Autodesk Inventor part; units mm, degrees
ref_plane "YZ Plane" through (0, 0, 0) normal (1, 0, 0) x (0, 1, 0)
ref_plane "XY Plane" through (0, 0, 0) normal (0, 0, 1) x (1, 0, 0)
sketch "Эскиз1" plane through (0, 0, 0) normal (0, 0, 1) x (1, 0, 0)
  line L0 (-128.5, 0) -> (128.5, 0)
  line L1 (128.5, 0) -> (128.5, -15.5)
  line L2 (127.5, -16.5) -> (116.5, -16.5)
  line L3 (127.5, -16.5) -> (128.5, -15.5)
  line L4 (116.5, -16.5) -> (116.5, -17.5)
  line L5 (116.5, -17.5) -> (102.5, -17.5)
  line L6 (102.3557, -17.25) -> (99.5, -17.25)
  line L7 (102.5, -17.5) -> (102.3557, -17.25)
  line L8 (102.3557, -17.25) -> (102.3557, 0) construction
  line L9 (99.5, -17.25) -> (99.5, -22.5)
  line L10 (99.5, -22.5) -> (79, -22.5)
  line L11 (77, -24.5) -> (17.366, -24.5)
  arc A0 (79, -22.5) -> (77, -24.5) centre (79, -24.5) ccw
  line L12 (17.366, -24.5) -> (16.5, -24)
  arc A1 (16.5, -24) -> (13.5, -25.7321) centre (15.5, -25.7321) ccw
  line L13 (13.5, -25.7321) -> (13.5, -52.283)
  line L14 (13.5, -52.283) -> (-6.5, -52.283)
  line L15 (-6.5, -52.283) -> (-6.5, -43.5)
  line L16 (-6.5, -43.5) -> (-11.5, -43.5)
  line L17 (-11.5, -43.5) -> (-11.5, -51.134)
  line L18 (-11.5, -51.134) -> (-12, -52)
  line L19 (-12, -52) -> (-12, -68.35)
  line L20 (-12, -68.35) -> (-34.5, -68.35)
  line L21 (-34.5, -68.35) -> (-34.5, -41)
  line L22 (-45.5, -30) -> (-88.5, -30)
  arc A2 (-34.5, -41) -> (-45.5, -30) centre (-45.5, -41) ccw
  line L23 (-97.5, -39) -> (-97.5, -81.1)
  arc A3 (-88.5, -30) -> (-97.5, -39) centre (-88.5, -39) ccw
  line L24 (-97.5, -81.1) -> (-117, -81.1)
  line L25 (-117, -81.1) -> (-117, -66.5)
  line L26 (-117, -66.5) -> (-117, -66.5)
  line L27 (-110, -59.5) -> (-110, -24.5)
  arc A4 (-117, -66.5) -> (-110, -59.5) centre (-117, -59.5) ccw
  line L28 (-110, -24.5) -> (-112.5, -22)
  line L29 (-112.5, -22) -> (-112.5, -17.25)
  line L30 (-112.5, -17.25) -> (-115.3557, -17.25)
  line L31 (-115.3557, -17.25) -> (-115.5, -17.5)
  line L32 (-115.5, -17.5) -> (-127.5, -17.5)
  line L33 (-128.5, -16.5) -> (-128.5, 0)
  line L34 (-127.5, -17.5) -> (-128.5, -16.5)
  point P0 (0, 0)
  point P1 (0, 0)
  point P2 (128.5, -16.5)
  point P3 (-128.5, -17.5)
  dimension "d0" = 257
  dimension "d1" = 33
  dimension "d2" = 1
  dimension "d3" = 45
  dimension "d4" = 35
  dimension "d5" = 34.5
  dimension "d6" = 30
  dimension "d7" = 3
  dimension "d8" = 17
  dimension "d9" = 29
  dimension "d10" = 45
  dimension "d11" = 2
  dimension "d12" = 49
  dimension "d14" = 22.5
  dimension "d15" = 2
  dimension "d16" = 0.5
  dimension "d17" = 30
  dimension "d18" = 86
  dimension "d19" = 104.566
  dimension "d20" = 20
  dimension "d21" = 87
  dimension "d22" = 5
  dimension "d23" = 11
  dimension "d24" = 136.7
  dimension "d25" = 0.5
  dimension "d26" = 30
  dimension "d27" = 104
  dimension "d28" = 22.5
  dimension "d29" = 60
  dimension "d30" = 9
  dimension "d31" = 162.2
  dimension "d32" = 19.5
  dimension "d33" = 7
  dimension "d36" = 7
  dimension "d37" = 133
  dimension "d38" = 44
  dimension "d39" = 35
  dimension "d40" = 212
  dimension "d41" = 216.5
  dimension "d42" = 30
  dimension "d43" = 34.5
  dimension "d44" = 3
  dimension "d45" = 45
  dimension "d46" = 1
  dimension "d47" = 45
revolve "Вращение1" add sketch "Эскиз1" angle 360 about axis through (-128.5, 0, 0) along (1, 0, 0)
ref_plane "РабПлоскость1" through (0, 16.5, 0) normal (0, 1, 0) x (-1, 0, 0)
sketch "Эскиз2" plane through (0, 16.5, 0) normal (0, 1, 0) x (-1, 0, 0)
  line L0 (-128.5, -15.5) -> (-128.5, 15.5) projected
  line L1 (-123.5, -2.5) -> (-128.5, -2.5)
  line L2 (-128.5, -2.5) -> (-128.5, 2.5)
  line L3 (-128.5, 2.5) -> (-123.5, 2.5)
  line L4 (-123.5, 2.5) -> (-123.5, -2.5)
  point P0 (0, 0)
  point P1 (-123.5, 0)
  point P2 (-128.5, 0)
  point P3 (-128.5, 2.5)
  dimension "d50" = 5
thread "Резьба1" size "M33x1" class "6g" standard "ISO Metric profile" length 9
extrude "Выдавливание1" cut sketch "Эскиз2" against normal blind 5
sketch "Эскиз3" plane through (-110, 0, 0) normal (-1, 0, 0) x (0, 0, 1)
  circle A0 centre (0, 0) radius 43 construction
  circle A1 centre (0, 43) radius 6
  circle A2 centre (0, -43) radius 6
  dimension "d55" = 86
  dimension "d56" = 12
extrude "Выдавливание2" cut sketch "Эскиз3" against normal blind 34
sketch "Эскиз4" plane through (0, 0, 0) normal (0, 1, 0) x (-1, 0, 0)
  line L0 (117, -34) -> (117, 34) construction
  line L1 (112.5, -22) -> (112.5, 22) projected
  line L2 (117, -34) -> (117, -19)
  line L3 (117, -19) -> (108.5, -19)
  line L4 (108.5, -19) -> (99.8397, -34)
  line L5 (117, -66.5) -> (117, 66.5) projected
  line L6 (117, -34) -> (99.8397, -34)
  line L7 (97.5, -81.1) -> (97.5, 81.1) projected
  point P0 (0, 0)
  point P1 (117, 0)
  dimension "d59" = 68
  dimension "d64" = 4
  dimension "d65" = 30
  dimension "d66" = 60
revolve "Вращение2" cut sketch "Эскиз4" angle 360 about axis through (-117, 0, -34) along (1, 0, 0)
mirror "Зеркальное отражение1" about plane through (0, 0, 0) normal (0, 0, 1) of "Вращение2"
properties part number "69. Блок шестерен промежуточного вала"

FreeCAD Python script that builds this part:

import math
import FreeCAD as App
import Part
import Sketcher
from FreeCAD import Vector
Q = App.Units.Quantity

doc = App.newDocument("Part")
body = doc.addObject("PartDesign::Body", "Body")

# Sketch on XY plane
sketch1 = body.newObject("Sketcher::SketchObject", "Sketch")
sketch1.AttachmentSupport = (doc.getObject("XY_Plane"), [""])
sketch1.MapMode = "FlatFace"
sketch1.addGeometry([
    Part.LineSegment(Vector(128.5, 0, 0), Vector(-128.5, 0, 0)),  # 0
    Part.LineSegment(Vector(-128.5, 0, 0), Vector(-128.5, -16.5, 0)),  # 1
    Part.LineSegment(Vector(-128.5, -16.5, 0), Vector(-127.5, -17.5, 0)),  # 2
    Part.LineSegment(Vector(-127.5, -17.5, 0), Vector(-115.5, -17.5, 0)),  # 3
    Part.LineSegment(Vector(-115.5, -17.5, 0), Vector(-115.3557, -17.25, 0)),  # 4
    Part.LineSegment(Vector(-115.3557, -17.25, 0), Vector(-112.5, -17.25, 0)),  # 5
    Part.LineSegment(Vector(-112.5, -17.25, 0), Vector(-112.5, -22, 0)),  # 6
    Part.LineSegment(Vector(-112.5, -22, 0), Vector(-110, -24.5, 0)),  # 7
    Part.LineSegment(Vector(-110, -24.5, 0), Vector(-110, -59.5, 0)),  # 8
    Part.ArcOfCircle(Part.Circle(Vector(-117, -59.5, 0), Vector(0, 0, 1), 7), math.radians(-90), math.radians(0)),  # 9
    Part.LineSegment(Vector(-117, -66.5, 0), Vector(-117, -81.1, 0)),  # 10
    Part.LineSegment(Vector(-117, -81.1, 0), Vector(-97.5, -81.1, 0)),  # 11
    Part.LineSegment(Vector(-97.5, -81.1, 0), Vector(-97.5, -39, 0)),  # 12
    Part.ArcOfCircle(Part.Circle(Vector(-88.5, -39, 0), Vector(0, 0, 1), 9), math.radians(90), math.radians(180)),  # 13
    Part.LineSegment(Vector(-88.5, -30, 0), Vector(-45.5, -30, 0)),  # 14
    Part.ArcOfCircle(Part.Circle(Vector(-45.5, -41, 0), Vector(0, 0, 1), 11), math.radians(0), math.radians(90)),  # 15
    Part.LineSegment(Vector(-34.5, -41, 0), Vector(-34.5, -68.35, 0)),  # 16
    Part.LineSegment(Vector(-34.5, -68.35, 0), Vector(-12, -68.35, 0)),  # 17
    Part.LineSegment(Vector(-12, -68.35, 0), Vector(-12, -52, 0)),  # 18
    Part.LineSegment(Vector(-12, -52, 0), Vector(-11.5, -51.134, 0)),  # 19
    Part.LineSegment(Vector(-11.5, -51.134, 0), Vector(-11.5, -43.5, 0)),  # 20
    Part.LineSegment(Vector(-11.5, -43.5, 0), Vector(-6.5, -43.5, 0)),  # 21
    Part.LineSegment(Vector(-6.5, -43.5, 0), Vector(-6.5, -52.283, 0)),  # 22
    Part.LineSegment(Vector(-6.5, -52.283, 0), Vector(13.5, -52.283, 0)),  # 23
    Part.LineSegment(Vector(13.5, -52.283, 0), Vector(13.5, -25.7321, 0)),  # 24
    Part.ArcOfCircle(Part.Circle(Vector(15.5, -25.7321, 0), Vector(0, 0, 1), 2.000043), math.radians(60.000705), math.radians(180)),  # 25
    Part.LineSegment(Vector(16.5, -24, 0), Vector(17.366, -24.5, 0)),  # 26
    Part.LineSegment(Vector(17.366, -24.5, 0), Vector(77, -24.5, 0)),  # 27
    Part.ArcOfCircle(Part.Circle(Vector(79, -24.5, 0), Vector(0, 0, 1), 2), math.radians(90), math.radians(180)),  # 28
    Part.LineSegment(Vector(79, -22.5, 0), Vector(99.5, -22.5, 0)),  # 29
    Part.LineSegment(Vector(99.5, -22.5, 0), Vector(99.5, -17.25, 0)),  # 30
    Part.LineSegment(Vector(99.5, -17.25, 0), Vector(102.3557, -17.25, 0)),  # 31
    Part.LineSegment(Vector(102.3557, -17.25, 0), Vector(102.5, -17.5, 0)),  # 32
    Part.LineSegment(Vector(102.5, -17.5, 0), Vector(116.5, -17.5, 0)),  # 33
    Part.LineSegment(Vector(116.5, -17.5, 0), Vector(116.5, -16.5, 0)),  # 34
    Part.LineSegment(Vector(116.5, -16.5, 0), Vector(127.5, -16.5, 0)),  # 35
    Part.LineSegment(Vector(127.5, -16.5, 0), Vector(128.5, -15.5, 0)),  # 36
    Part.LineSegment(Vector(128.5, -15.5, 0), Vector(128.5, 0, 0)),  # 37
], False)
sketch1.addConstraint([
    Sketcher.Constraint("Coincident", 0, 2, 1, 1),
    Sketcher.Constraint("Coincident", 1, 2, 2, 1),
    Sketcher.Constraint("Coincident", 2, 2, 3, 1),
    Sketcher.Constraint("Coincident", 3, 2, 4, 1),
    Sketcher.Constraint("Coincident", 4, 2, 5, 1),
    Sketcher.Constraint("Coincident", 5, 2, 6, 1),
    Sketcher.Constraint("Coincident", 6, 2, 7, 1),
    Sketcher.Constraint("Coincident", 7, 2, 8, 1),
    Sketcher.Constraint("Tangent", 8, 2, 9, 2),
    Sketcher.Constraint("Coincident", 9, 1, 10, 1),
    Sketcher.Constraint("Coincident", 10, 2, 11, 1),
    Sketcher.Constraint("Coincident", 11, 2, 12, 1),
    Sketcher.Constraint("Tangent", 12, 2, 13, 2),
    Sketcher.Constraint("Tangent", 13, 1, 14, 1),
    Sketcher.Constraint("Tangent", 14, 2, 15, 2),
    Sketcher.Constraint("Tangent", 15, 1, 16, 1),
    Sketcher.Constraint("Coincident", 16, 2, 17, 1),
    Sketcher.Constraint("Coincident", 17, 2, 18, 1),
    Sketcher.Constraint("Coincident", 18, 2, 19, 1),
    Sketcher.Constraint("Coincident", 19, 2, 20, 1),
    Sketcher.Constraint("Coincident", 20, 2, 21, 1),
    Sketcher.Constraint("Coincident", 21, 2, 22, 1),
    Sketcher.Constraint("Coincident", 22, 2, 23, 1),
    Sketcher.Constraint("Coincident", 23, 2, 24, 1),
    Sketcher.Constraint("Tangent", 24, 2, 25, 2),
    Sketcher.Constraint("Tangent", 25, 1, 26, 1),
    Sketcher.Constraint("Coincident", 26, 2, 27, 1),
    Sketcher.Constraint("Coincident", 27, 2, 28, 2),
    Sketcher.Constraint("Tangent", 28, 1, 29, 1),
    Sketcher.Constraint("Coincident", 29, 2, 30, 1),
    Sketcher.Constraint("Coincident", 30, 2, 31, 1),
    Sketcher.Constraint("Coincident", 31, 2, 32, 1),
    Sketcher.Constraint("Coincident", 32, 2, 33, 1),
    Sketcher.Constraint("Coincident", 33, 2, 34, 1),
    Sketcher.Constraint("Coincident", 34, 2, 35, 1),
    Sketcher.Constraint("Coincident", 35, 2, 36, 1),
    Sketcher.Constraint("Coincident", 36, 2, 37, 1),
    Sketcher.Constraint("Coincident", 37, 2, 0, 1),
    Sketcher.Constraint("Horizontal", 0),
    Sketcher.Constraint("Vertical", 1),
    Sketcher.Constraint("Horizontal", 3),
    Sketcher.Constraint("Horizontal", 5),
    Sketcher.Constraint("Vertical", 6),
    Sketcher.Constraint("Vertical", 8),
    Sketcher.Constraint("Vertical", 10),
    Sketcher.Constraint("Horizontal", 11),
    Sketcher.Constraint("Vertical", 12),
    Sketcher.Constraint("Horizontal", 14),
    Sketcher.Constraint("Vertical", 16),
    Sketcher.Constraint("Horizontal", 17),
    Sketcher.Constraint("Vertical", 18),
    Sketcher.Constraint("Vertical", 20),
    Sketcher.Constraint("Horizontal", 21),
    Sketcher.Constraint("Vertical", 22),
    Sketcher.Constraint("Horizontal", 23),
    Sketcher.Constraint("Vertical", 24),
    Sketcher.Constraint("Horizontal", 27),
    Sketcher.Constraint("Horizontal", 29),
    Sketcher.Constraint("Vertical", 30),
    Sketcher.Constraint("Horizontal", 31),
    Sketcher.Constraint("Horizontal", 33),
    Sketcher.Constraint("Vertical", 34),
    Sketcher.Constraint("Horizontal", 35),
    Sketcher.Constraint("Vertical", 37),
    Sketcher.Constraint("Equal", 25, 28),
    Sketcher.Constraint("Symmetric", 0, 2, 37, 2, -1, 1),
    Sketcher.Constraint("Parallel", 2, 7),
    Sketcher.Constraint("Parallel", 4, 19),
    Sketcher.Constraint("Perpendicular", 19, 26),
    Sketcher.Constraint("Perpendicular", 7, 36),
    Sketcher.Constraint("Horizontal", 28, 3, 7, 2),
    Sketcher.Constraint("Horizontal", 7, 2, 26, 2),
    Sketcher.Constraint("Horizontal", 5, 2, 30, 2),
    Sketcher.Constraint("Horizontal", 3, 2, 32, 2),
    Sketcher.Constraint("Horizontal", 1, 2, 34, 2),
    Sketcher.Constraint("Equal", 5, 31),
    Sketcher.Constraint("Equal", 19, 26),
    Sketcher.Constraint("Equal", 4, 32),
    Sketcher.Constraint("Equal", 2, 36),
    Sketcher.Constraint("Radius", 9, Q("7 mm")),
    Sketcher.Constraint("Radius", 13, Q("9 mm")),
    Sketcher.Constraint("Radius", 15, Q("11 mm")),
    Sketcher.Constraint("Radius", 25, Q("2 mm")),
    Sketcher.Constraint("DistanceX", 0, 2, 0, 1, Q("257 mm")),
    Sketcher.Constraint("DistanceX", 21, 1, 21, 2, Q("5 mm")),
    Sketcher.Constraint("DistanceX", 23, 1, 23, 2, Q("20 mm")),
    Sketcher.Constraint("DistanceX", 35, 1, 35, 2, Q("11 mm")),
    Sketcher.Constraint("DistanceY", 8, 2, 8, 1, Q("35 mm")),
    Sketcher.Constraint("DistanceY", 34, 1, 34, 2, Q("1 mm")),
    Sketcher.Constraint("Angle", 2, Q("-45 deg")),
    Sketcher.Constraint("Distance", 19, Q("1 mm")),
    Sketcher.Constraint("DistanceX", 11, 1, 11, 2, Q("19.5 mm")),
    Sketcher.Constraint("DistanceX", 17, 1, 17, 2, Q("22.5 mm")),
    Sketcher.Constraint("DistanceY", 13, 1, -1, 1, Q("30 mm")),
    Sketcher.Constraint("DistanceX", 13, 3, 25, 3, Q("104 mm")),
    Sketcher.Constraint("DistanceX", 3, 2, 5, 2, Q("3 mm")),
    Sketcher.Constraint("DistanceY", 7, 2, 3, 2, Q("7 mm")),
    Sketcher.Constraint("DistanceX", 9, 1, 8, 2, Q("7 mm")),
    Sketcher.Constraint("DistanceY", 12, 2, 6, 2, Q("17 mm")),
    Sketcher.Constraint("DistanceY", 18, 2, 15, 1, Q("11 mm")),
    Sketcher.Constraint("DistanceX", 25, 3, 25, 1, Q("1 mm")),
    Sketcher.Constraint("DistanceX", 30, 2, 33, 2, Q("17 mm")),
    Sketcher.Constraint("DistanceX", 15, 1, -1, 1, Q("34.5 mm")),
    Sketcher.Constraint("DistanceY", 28, 1, -1, 1, Q("22.5 mm")),
    Sketcher.Constraint("DistanceY", 21, 2, 25, 1, Q("19.5 mm")),
    Sketcher.Constraint("DistanceX", 27, 2, 29, 2, Q("22.5 mm")),
    Sketcher.Constraint("DistanceY", 10, 2, 10, 1, Q("14.6 mm")),
    Sketcher.Constraint("DistanceY", 6, 2, 6, 1, Q("4.75 mm")),
    Sketcher.Constraint("DistanceY", 16, 2, 16, 1, Q("27.35 mm")),
    Sketcher.Constraint("DistanceY", 22, 2, 22, 1, Q("8.783 mm")),
])
revolution = body.newObject("PartDesign::Revolution", "Revolution")
revolution.Profile = sketch1
revolution.ReferenceAxis = (sketch1, ["H_Axis"])
revolution.Angle = 360

# Sketch on XZ plane
sketch2 = body.newObject("Sketcher::SketchObject", "Sketch001")
sketch2.AttachmentSupport = (doc.getObject("XZ_Plane"), [""])
sketch2.MapMode = "FlatFace"
sketch2.AttachmentOffset = App.Placement(Vector(0, 0, -16.5), App.Rotation())
sketch2.addGeometry([
    Part.LineSegment(Vector(128.5, 2.5, 0), Vector(128.5, -2.5, 0)),
    Part.LineSegment(Vector(128.5, -2.5, 0), Vector(123.5, -2.5, 0)),
    Part.LineSegment(Vector(123.5, -2.5, 0), Vector(123.5, 2.5, 0)),
    Part.LineSegment(Vector(123.5, 2.5, 0), Vector(128.5, 2.5, 0)),
], False)
sketch2.addConstraint([
    Sketcher.Constraint("Coincident", 0, 2, 1, 1),
    Sketcher.Constraint("Coincident", 1, 2, 2, 1),
    Sketcher.Constraint("Coincident", 2, 2, 3, 1),
    Sketcher.Constraint("Coincident", 3, 2, 0, 1),
    Sketcher.Constraint("Vertical", 0),
    Sketcher.Constraint("Horizontal", 1),
    Sketcher.Constraint("Vertical", 2),
    Sketcher.Constraint("Horizontal", 3),
    Sketcher.Constraint("Equal", 3, 0),
    Sketcher.Constraint("DistanceX", 1, 2, 1, 1, Q("5 mm")),
    Sketcher.Constraint("DistanceX", -1, 1, 0, 2, Q("128.5 mm")),
    Sketcher.Constraint("DistanceY", 0, 2, -1, 1, Q("2.5 mm")),
])
pocket1 = body.newObject("PartDesign::Pocket", "Pocket")
pocket1.Profile = sketch2
pocket1.Length = 5
pocket1.Reversed = True

# Sketch on YZ plane
sketch3 = body.newObject("Sketcher::SketchObject", "Sketch002")
sketch3.AttachmentSupport = (doc.getObject("YZ_Plane"), [""])
sketch3.MapMode = "FlatFace"
sketch3.AttachmentOffset = App.Placement(Vector(0, 0, -110), App.Rotation())
sketch3.addGeometry([
    Part.Circle(Vector(43, 0, 0), Vector(0, 0, 1), 6),
    Part.Circle(Vector(-43, 0, 0), Vector(0, 0, 1), 6),
], False)
sketch3.addConstraint([
    Sketcher.Constraint("Equal", 0, 1),
    Sketcher.Constraint("Symmetric", 0, 3, 1, 3, -1, 1),
    Sketcher.Constraint("PointOnObject", 0, 3, -1),
    Sketcher.Constraint("Diameter", 0, Q("12 mm")),
    Sketcher.Constraint("DistanceX", 1, 3, 0, 3, Q("86 mm")),
])
pocket2 = body.newObject("PartDesign::Pocket", "Pocket001")
pocket2.Profile = sketch3
pocket2.Length = 34
pocket2.Reversed = True

# Sketch on XZ plane
sketch4 = body.newObject("Sketcher::SketchObject", "Sketch003")
sketch4.AttachmentSupport = (doc.getObject("XZ_Plane"), [""])
sketch4.MapMode = "FlatFace"
sketch4.addGeometry([
    Part.LineSegment(Vector(-99.8397, -34, 0), Vector(-117, -34, 0)),
    Part.LineSegment(Vector(-117, -34, 0), Vector(-117, -19, 0)),
    Part.LineSegment(Vector(-117, -19, 0), Vector(-108.5, -19, 0)),
    Part.LineSegment(Vector(-108.5, -19, 0), Vector(-99.8397, -34, 0)),
], False)
sketch4.addGeometry(Part.LineSegment(Vector(-117, -34, 0), Vector(-99.8397, -34, 0)), True)  # axis
sketch4.addConstraint([
    Sketcher.Constraint("Coincident", 0, 2, 1, 1),
    Sketcher.Constraint("Coincident", 1, 2, 2, 1),
    Sketcher.Constraint("Coincident", 2, 2, 3, 1),
    Sketcher.Constraint("Coincident", 3, 2, 0, 1),
    Sketcher.Constraint("Horizontal", 0),
    Sketcher.Constraint("Vertical", 1),
    Sketcher.Constraint("Horizontal", 2),
    Sketcher.Constraint("Horizontal", 4),
    Sketcher.Constraint("Coincident", 4, 1, 0, 2),
    Sketcher.Constraint("Equal", 0, 4),
    Sketcher.Constraint("Angle", 3, Q("-59.9999 deg")),
    Sketcher.Constraint("DistanceY", 1, 1, 1, 2, Q("15 mm")),
    Sketcher.Constraint("DistanceX", 2, 1, 2, 2, Q("8.5 mm")),
    Sketcher.Constraint("DistanceX", 0, 2, -1, 1, Q("117 mm")),
    Sketcher.Constraint("DistanceY", 0, 2, -1, 1, Q("34 mm")),
])
groove = body.newObject("PartDesign::Groove", "Groove")
groove.Profile = sketch4
groove.ReferenceAxis = (sketch4, ["Axis0"])
groove.Angle = 360
doc.recompute()

mirrored = body.newObject("PartDesign::Mirrored", "Mirrored")
mirrored.Originals = [groove]
mirrored.MirrorPlane = (doc.getObject("XY_Plane"), [""])
body.Tip = mirrored

doc.recompute()
